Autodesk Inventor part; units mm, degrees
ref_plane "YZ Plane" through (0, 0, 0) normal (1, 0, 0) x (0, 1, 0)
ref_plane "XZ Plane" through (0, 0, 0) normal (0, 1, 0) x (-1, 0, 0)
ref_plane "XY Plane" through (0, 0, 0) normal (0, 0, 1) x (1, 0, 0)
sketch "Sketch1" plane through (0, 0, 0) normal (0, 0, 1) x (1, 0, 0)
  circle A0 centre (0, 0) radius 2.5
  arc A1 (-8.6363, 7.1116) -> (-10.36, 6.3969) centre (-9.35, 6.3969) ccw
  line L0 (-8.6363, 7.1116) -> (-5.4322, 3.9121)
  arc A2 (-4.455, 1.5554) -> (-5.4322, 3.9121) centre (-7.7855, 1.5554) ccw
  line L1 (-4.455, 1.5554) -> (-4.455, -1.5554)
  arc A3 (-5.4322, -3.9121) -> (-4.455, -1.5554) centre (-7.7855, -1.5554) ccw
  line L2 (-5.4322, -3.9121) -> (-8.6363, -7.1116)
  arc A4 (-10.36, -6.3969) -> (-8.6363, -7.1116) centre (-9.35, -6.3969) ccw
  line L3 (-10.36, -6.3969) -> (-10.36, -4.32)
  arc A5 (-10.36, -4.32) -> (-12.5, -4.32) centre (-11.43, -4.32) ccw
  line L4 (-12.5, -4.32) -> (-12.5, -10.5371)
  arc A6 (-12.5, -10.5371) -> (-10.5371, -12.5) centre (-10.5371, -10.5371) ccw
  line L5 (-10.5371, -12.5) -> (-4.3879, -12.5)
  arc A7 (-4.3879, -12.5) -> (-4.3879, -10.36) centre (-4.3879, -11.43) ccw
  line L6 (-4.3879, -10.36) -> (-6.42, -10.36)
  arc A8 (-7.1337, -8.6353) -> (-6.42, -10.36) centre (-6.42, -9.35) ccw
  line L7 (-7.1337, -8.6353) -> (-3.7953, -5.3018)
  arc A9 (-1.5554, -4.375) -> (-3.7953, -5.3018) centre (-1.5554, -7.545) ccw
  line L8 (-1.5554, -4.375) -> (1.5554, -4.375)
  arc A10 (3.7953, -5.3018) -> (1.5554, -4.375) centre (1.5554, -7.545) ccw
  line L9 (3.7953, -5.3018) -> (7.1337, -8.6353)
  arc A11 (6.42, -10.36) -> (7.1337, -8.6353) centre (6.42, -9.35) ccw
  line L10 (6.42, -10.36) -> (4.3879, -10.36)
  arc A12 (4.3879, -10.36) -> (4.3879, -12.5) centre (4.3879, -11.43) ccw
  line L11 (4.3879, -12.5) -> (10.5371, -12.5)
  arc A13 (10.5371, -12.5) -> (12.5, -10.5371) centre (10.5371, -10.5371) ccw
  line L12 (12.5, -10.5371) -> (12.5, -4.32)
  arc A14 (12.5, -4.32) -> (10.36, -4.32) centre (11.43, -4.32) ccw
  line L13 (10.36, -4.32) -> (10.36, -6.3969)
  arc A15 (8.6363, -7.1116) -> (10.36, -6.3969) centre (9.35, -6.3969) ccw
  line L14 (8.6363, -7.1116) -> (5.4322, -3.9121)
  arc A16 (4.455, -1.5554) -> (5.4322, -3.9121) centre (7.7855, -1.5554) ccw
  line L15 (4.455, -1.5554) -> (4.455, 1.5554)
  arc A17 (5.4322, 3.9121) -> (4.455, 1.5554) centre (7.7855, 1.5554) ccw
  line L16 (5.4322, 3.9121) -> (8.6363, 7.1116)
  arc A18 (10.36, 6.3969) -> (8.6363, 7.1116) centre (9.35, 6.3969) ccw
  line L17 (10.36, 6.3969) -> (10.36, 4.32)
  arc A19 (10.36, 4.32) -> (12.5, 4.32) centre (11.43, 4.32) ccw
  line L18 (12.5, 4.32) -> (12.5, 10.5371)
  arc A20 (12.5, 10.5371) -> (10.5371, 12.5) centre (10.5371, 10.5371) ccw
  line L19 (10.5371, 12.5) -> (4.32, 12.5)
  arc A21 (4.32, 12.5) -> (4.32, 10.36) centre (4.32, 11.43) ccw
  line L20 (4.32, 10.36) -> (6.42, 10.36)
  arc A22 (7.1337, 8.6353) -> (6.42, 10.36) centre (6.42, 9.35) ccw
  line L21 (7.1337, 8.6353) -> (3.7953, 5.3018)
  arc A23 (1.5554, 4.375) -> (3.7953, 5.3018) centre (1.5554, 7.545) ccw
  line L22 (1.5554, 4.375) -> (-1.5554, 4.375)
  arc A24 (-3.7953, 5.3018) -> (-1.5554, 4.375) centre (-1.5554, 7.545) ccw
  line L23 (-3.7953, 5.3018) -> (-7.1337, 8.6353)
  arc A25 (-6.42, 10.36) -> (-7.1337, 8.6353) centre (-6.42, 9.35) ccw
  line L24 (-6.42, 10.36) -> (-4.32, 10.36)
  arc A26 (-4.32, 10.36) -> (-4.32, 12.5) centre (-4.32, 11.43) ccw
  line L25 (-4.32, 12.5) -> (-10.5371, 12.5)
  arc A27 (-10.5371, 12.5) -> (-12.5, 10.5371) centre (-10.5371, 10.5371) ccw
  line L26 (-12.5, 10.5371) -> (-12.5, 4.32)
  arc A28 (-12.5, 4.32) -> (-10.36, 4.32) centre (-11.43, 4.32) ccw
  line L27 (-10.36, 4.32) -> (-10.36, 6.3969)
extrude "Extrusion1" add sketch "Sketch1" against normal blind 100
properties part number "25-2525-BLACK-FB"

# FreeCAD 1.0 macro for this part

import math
import FreeCAD as App
import Part
import Sketcher
Q = App.Units.Quantity

doc = App.newDocument("Part")
body = doc.addObject("PartDesign::Body", "Body")

# Sketch on XY plane
sketch1 = body.newObject("Sketcher::SketchObject", "Sketch")
sketch1.AttachmentSupport = (doc.getObject("XY_Plane"), [""])
sketch1.MapMode = "FlatFace"
sketch1.addGeometry(Part.ArcOfCircle(Part.Circle(App.Vector(-9.3, 6.4, 0), App.Vector(0, 0, 1), 1), math.radians(45), math.radians(180)), False)
sketch1.addGeometry(Part.LineSegment(App.Vector(-8.6, 7.1, 0), App.Vector(-5.4, 3.9, 0)), False)
sketch1.addGeometry(Part.ArcOfCircle(Part.Circle(App.Vector(-7.8, 1.6, 0), App.Vector(0, 0, 1), 3.3), math.radians(0), math.radians(45)), False)
sketch1.addGeometry(Part.LineSegment(App.Vector(-4.5, 1.6, 0), App.Vector(-4.5, -1.6, 0)), False)
sketch1.addGeometry(Part.ArcOfCircle(Part.Circle(App.Vector(-7.8, -1.6, 0), App.Vector(0, 0, 1), 3.3), math.radians(-45), math.radians(0)), False)
sketch1.addGeometry(Part.LineSegment(App.Vector(-5.4, -3.9, 0), App.Vector(-8.6, -7.1, 0)), False)
sketch1.addGeometry(Part.ArcOfCircle(Part.Circle(App.Vector(-9.3, -6.4, 0), App.Vector(0, 0, 1), 1), math.radians(180), math.radians(315)), False)
sketch1.addGeometry(Part.LineSegment(App.Vector(-10.4, -6.4, 0), App.Vector(-10.4, -4.3, 0)), False)
sketch1.addGeometry(Part.ArcOfCircle(Part.Circle(App.Vector(-11.4, -4.3, 0), App.Vector(0, 0, 1), 1.1), math.radians(0), math.radians(180)), False)
sketch1.addGeometry(Part.LineSegment(App.Vector(-12.5, -4.3, 0), App.Vector(-12.5, -10.5, 0)), False)
sketch1.addGeometry(Part.ArcOfCircle(Part.Circle(App.Vector(-10.5, -10.5, 0), App.Vector(0, 0, 1), 2), math.radians(180), math.radians(270)), False)
sketch1.addGeometry(Part.LineSegment(App.Vector(-10.5, -12.5, 0), App.Vector(-4.4, -12.5, 0)), False)
sketch1.addGeometry(Part.ArcOfCircle(Part.Circle(App.Vector(-4.4, -11.4, 0), App.Vector(0, 0, 1), 1.1), math.radians(-90), math.radians(90)), False)
sketch1.addGeometry(Part.LineSegment(App.Vector(-4.4, -10.4, 0), App.Vector(-6.4, -10.4, 0)), False)
sketch1.addGeometry(Part.ArcOfCircle(Part.Circle(App.Vector(-6.4, -9.3, 0), App.Vector(0, 0, 1), 1), math.radians(135), math.radians(270)), False)
sketch1.addGeometry(Part.LineSegment(App.Vector(-7.1, -8.6, 0), App.Vector(-3.8, -5.3, 0)), False)
sketch1.addGeometry(Part.ArcOfCircle(Part.Circle(App.Vector(-1.6, -7.5, 0), App.Vector(0, 0, 1), 3.2), math.radians(90), math.radians(135)), False)
sketch1.addGeometry(Part.LineSegment(App.Vector(-1.6, -4.4, 0), App.Vector(1.6, -4.4, 0)), False)
sketch1.addGeometry(Part.ArcOfCircle(Part.Circle(App.Vector(1.6, -7.5, 0), App.Vector(0, 0, 1), 3.2), math.radians(45), math.radians(90)), False)
sketch1.addGeometry(Part.LineSegment(App.Vector(3.8, -5.3, 0), App.Vector(7.1, -8.6, 0)), False)
sketch1.addGeometry(Part.ArcOfCircle(Part.Circle(App.Vector(6.4, -9.3, 0), App.Vector(0, 0, 1), 1), math.radians(-90), math.radians(45)), False)
sketch1.addGeometry(Part.LineSegment(App.Vector(6.4, -10.4, 0), App.Vector(4.4, -10.4, 0)), False)
sketch1.addGeometry(Part.ArcOfCircle(Part.Circle(App.Vector(4.4, -11.4, 0), App.Vector(0, 0, 1), 1.1), math.radians(90), math.radians(270)), False)
sketch1.addGeometry(Part.LineSegment(App.Vector(4.4, -12.5, 0), App.Vector(10.5, -12.5, 0)), False)
sketch1.addGeometry(Part.ArcOfCircle(Part.Circle(App.Vector(10.5, -10.5, 0), App.Vector(0, 0, 1), 2), math.radians(-90), math.radians(0)), False)
sketch1.addGeometry(Part.LineSegment(App.Vector(12.5, -10.5, 0), App.Vector(12.5, -4.3, 0)), False)
sketch1.addGeometry(Part.ArcOfCircle(Part.Circle(App.Vector(11.4, -4.3, 0), App.Vector(0, 0, 1), 1.1), math.radians(0), math.radians(180)), False)
sketch1.addGeometry(Part.LineSegment(App.Vector(10.4, -4.3, 0), App.Vector(10.4, -6.4, 0)), False)
sketch1.addGeometry(Part.ArcOfCircle(Part.Circle(App.Vector(9.3, -6.4, 0), App.Vector(0, 0, 1), 1), math.radians(-135), math.radians(0)), False)
sketch1.addGeometry(Part.LineSegment(App.Vector(8.6, -7.1, 0), App.Vector(5.4, -3.9, 0)), False)
sketch1.addGeometry(Part.ArcOfCircle(Part.Circle(App.Vector(7.8, -1.6, 0), App.Vector(0, 0, 1), 3.3), math.radians(180), math.radians(225)), False)
sketch1.addGeometry(Part.LineSegment(App.Vector(4.5, -1.6, 0), App.Vector(4.5, 1.6, 0)), False)
sketch1.addGeometry(Part.ArcOfCircle(Part.Circle(App.Vector(7.8, 1.6, 0), App.Vector(0, 0, 1), 3.3), math.radians(135), math.radians(180)), False)
sketch1.addGeometry(Part.LineSegment(App.Vector(5.4, 3.9, 0), App.Vector(8.6, 7.1, 0)), False)
sketch1.addGeometry(Part.ArcOfCircle(Part.Circle(App.Vector(9.3, 6.4, 0), App.Vector(0, 0, 1), 1), math.radians(0), math.radians(135)), False)
sketch1.addGeometry(Part.LineSegment(App.Vector(10.4, 6.4, 0), App.Vector(10.4, 4.3, 0)), False)
sketch1.addGeometry(Part.ArcOfCircle(Part.Circle(App.Vector(11.4, 4.3, 0), App.Vector(0, 0, 1), 1.1), math.radians(180), math.radians(360)), False)
sketch1.addGeometry(Part.LineSegment(App.Vector(12.5, 4.3, 0), App.Vector(12.5, 10.5, 0)), False)
sketch1.addGeometry(Part.ArcOfCircle(Part.Circle(App.Vector(10.5, 10.5, 0), App.Vector(0, 0, 1), 2), math.radians(0), math.radians(90)), False)
sketch1.addGeometry(Part.LineSegment(App.Vector(10.5, 12.5, 0), App.Vector(4.3, 12.5, 0)), False)
sketch1.addGeometry(Part.ArcOfCircle(Part.Circle(App.Vector(4.3, 11.4, 0), App.Vector(0, 0, 1), 1.1), math.radians(90), math.radians(270)), False)
sketch1.addGeometry(Part.LineSegment(App.Vector(4.3, 10.4, 0), App.Vector(6.4, 10.4, 0)), False)
sketch1.addGeometry(Part.ArcOfCircle(Part.Circle(App.Vector(6.4, 9.3, 0), App.Vector(0, 0, 1), 1), math.radians(-45), math.radians(90)), False)
sketch1.addGeometry(Part.LineSegment(App.Vector(7.1, 8.6, 0), App.Vector(3.8, 5.3, 0)), False)
sketch1.addGeometry(Part.ArcOfCircle(Part.Circle(App.Vector(1.6, 7.5, 0), App.Vector(0, 0, 1), 3.2), math.radians(-90), math.radians(-45)), False)
sketch1.addGeometry(Part.LineSegment(App.Vector(1.6, 4.4, 0), App.Vector(-1.6, 4.4, 0)), False)
sketch1.addGeometry(Part.ArcOfCircle(Part.Circle(App.Vector(-1.6, 7.5, 0), App.Vector(0, 0, 1), 3.2), math.radians(-135), math.radians(-90)), False)
sketch1.addGeometry(Part.LineSegment(App.Vector(-3.8, 5.3, 0), App.Vector(-7.1, 8.6, 0)), False)
sketch1.addGeometry(Part.ArcOfCircle(Part.Circle(App.Vector(-6.4, 9.3, 0), App.Vector(0, 0, 1), 1), math.radians(90), math.radians(225)), False)
sketch1.addGeometry(Part.LineSegment(App.Vector(-6.4, 10.4, 0), App.Vector(-4.3, 10.4, 0)), False)
sketch1.addGeometry(Part.ArcOfCircle(Part.Circle(App.Vector(-4.3, 11.4, 0), App.Vector(0, 0, 1), 1.1), math.radians(-90), math.radians(90)), False)
sketch1.addGeometry(Part.LineSegment(App.Vector(-4.3, 12.5, 0), App.Vector(-10.5, 12.5, 0)), False)
sketch1.addGeometry(Part.ArcOfCircle(Part.Circle(App.Vector(-10.5, 10.5, 0), App.Vector(0, 0, 1), 2), math.radians(90), math.radians(180)), False)
sketch1.addGeometry(Part.LineSegment(App.Vector(-12.5, 10.5, 0), App.Vector(-12.5, 4.3, 0)), False)
sketch1.addGeometry(Part.ArcOfCircle(Part.Circle(App.Vector(-11.4, 4.3, 0), App.Vector(0, 0, 1), 1.1), math.radians(180), math.radians(360)), False)
sketch1.addGeometry(Part.LineSegment(App.Vector(-10.4, 4.3, 0), App.Vector(-10.4, 6.4, 0)), False)
sketch1.addGeometry(Part.Circle(App.Vector(0, 0, 0), App.Vector(0, 0, 1), 2.5), False)
sketch1.addConstraint(Sketcher.Constraint("Tangent", 0, 1, 1, 1))
sketch1.addConstraint(Sketcher.Constraint("Tangent", 1, 2, 2, 2))
sketch1.addConstraint(Sketcher.Constraint("Tangent", 2, 1, 3, 1))
sketch1.addConstraint(Sketcher.Constraint("Tangent", 3, 2, 4, 2))
sketch1.addConstraint(Sketcher.Constraint("Tangent", 4, 1, 5, 1))
sketch1.addConstraint(Sketcher.Constraint("Tangent", 5, 2, 6, 2))
sketch1.addConstraint(Sketcher.Constraint("Tangent", 6, 1, 7, 1))
sketch1.addConstraint(Sketcher.Constraint("Tangent", 7, 2, 8, 1))
sketch1.addConstraint(Sketcher.Constraint("Tangent", 8, 2, 9, 1))
sketch1.addConstraint(Sketcher.Constraint("Tangent", 9, 2, 10, 1))
sketch1.addConstraint(Sketcher.Constraint("Tangent", 10, 2, 11, 1))
sketch1.addConstraint(Sketcher.Constraint("Tangent", 11, 2, 12, 1))
sketch1.addConstraint(Sketcher.Constraint("Tangent", 12, 2, 13, 1))
sketch1.addConstraint(Sketcher.Constraint("Tangent", 13, 2, 14, 2))
sketch1.addConstraint(Sketcher.Constraint("Tangent", 14, 1, 15, 1))
sketch1.addConstraint(Sketcher.Constraint("Tangent", 15, 2, 16, 2))
sketch1.addConstraint(Sketcher.Constraint("Tangent", 16, 1, 17, 1))
sketch1.addConstraint(Sketcher.Constraint("Tangent", 17, 2, 18, 2))
sketch1.addConstraint(Sketcher.Constraint("Tangent", 18, 1, 19, 1))
sketch1.addConstraint(Sketcher.Constraint("Tangent", 19, 2, 20, 2))
sketch1.addConstraint(Sketcher.Constraint("Tangent", 20, 1, 21, 1))
sketch1.addConstraint(Sketcher.Constraint("Tangent", 21, 2, 22, 1))
sketch1.addConstraint(Sketcher.Constraint("Tangent", 22, 2, 23, 1))
sketch1.addConstraint(Sketcher.Constraint("Tangent", 23, 2, 24, 1))
sketch1.addConstraint(Sketcher.Constraint("Tangent", 24, 2, 25, 1))
sketch1.addConstraint(Sketcher.Constraint("Tangent", 25, 2, 26, 1))
sketch1.addConstraint(Sketcher.Constraint("Tangent", 26, 2, 27, 1))
sketch1.addConstraint(Sketcher.Constraint("Tangent", 27, 2, 28, 2))
sketch1.addConstraint(Sketcher.Constraint("Tangent", 28, 1, 29, 1))
sketch1.addConstraint(Sketcher.Constraint("Tangent", 29, 2, 30, 2))
sketch1.addConstraint(Sketcher.Constraint("Tangent", 30, 1, 31, 1))
sketch1.addConstraint(Sketcher.Constraint("Tangent", 31, 2, 32, 2))
sketch1.addConstraint(Sketcher.Constraint("Tangent", 32, 1, 33, 1))
sketch1.addConstraint(Sketcher.Constraint("Tangent", 33, 2, 34, 2))
sketch1.addConstraint(Sketcher.Constraint("Tangent", 34, 1, 35, 1))
sketch1.addConstraint(Sketcher.Constraint("Tangent", 35, 2, 36, 1))
sketch1.addConstraint(Sketcher.Constraint("Tangent", 36, 2, 37, 1))
sketch1.addConstraint(Sketcher.Constraint("Tangent", 37, 2, 38, 1))
sketch1.addConstraint(Sketcher.Constraint("Tangent", 38, 2, 39, 1))
sketch1.addConstraint(Sketcher.Constraint("Tangent", 39, 2, 40, 1))
sketch1.addConstraint(Sketcher.Constraint("Tangent", 40, 2, 41, 1))
sketch1.addConstraint(Sketcher.Constraint("Tangent", 41, 2, 42, 2))
sketch1.addConstraint(Sketcher.Constraint("Tangent", 42, 1, 43, 1))
sketch1.addConstraint(Sketcher.Constraint("Tangent", 43, 2, 44, 2))
sketch1.addConstraint(Sketcher.Constraint("Tangent", 44, 1, 45, 1))
sketch1.addConstraint(Sketcher.Constraint("Tangent", 45, 2, 46, 2))
sketch1.addConstraint(Sketcher.Constraint("Tangent", 46, 1, 47, 1))
sketch1.addConstraint(Sketcher.Constraint("Tangent", 47, 2, 48, 2))
sketch1.addConstraint(Sketcher.Constraint("Tangent", 48, 1, 49, 1))
sketch1.addConstraint(Sketcher.Constraint("Tangent", 49, 2, 50, 1))
sketch1.addConstraint(Sketcher.Constraint("Tangent", 50, 2, 51, 1))
sketch1.addConstraint(Sketcher.Constraint("Tangent", 51, 2, 52, 1))
sketch1.addConstraint(Sketcher.Constraint("Tangent", 52, 2, 53, 1))
sketch1.addConstraint(Sketcher.Constraint("Tangent", 53, 2, 54, 1))
sketch1.addConstraint(Sketcher.Constraint("Tangent", 54, 2, 55, 1))
sketch1.addConstraint(Sketcher.Constraint("Tangent", 55, 2, 0, 2))
sketch1.addConstraint(Sketcher.Constraint("Vertical", 3))
sketch1.addConstraint(Sketcher.Constraint("Vertical", 7))
sketch1.addConstraint(Sketcher.Constraint("Vertical", 9))
sketch1.addConstraint(Sketcher.Constraint("Horizontal", 11))
sketch1.addConstraint(Sketcher.Constraint("Horizontal", 13))
sketch1.addConstraint(Sketcher.Constraint("Horizontal", 17))
sketch1.addConstraint(Sketcher.Constraint("Horizontal", 21))
sketch1.addConstraint(Sketcher.Constraint("Horizontal", 23))
sketch1.addConstraint(Sketcher.Constraint("Vertical", 25))
sketch1.addConstraint(Sketcher.Constraint("Vertical", 27))
sketch1.addConstraint(Sketcher.Constraint("Vertical", 31))
sketch1.addConstraint(Sketcher.Constraint("Vertical", 35))
sketch1.addConstraint(Sketcher.Constraint("Vertical", 37))
sketch1.addConstraint(Sketcher.Constraint("Horizontal", 39))
sketch1.addConstraint(Sketcher.Constraint("Horizontal", 41))
sketch1.addConstraint(Sketcher.Constraint("Horizontal", 45))
sketch1.addConstraint(Sketcher.Constraint("Horizontal", 49))
sketch1.addConstraint(Sketcher.Constraint("Horizontal", 51))
sketch1.addConstraint(Sketcher.Constraint("Vertical", 53))
sketch1.addConstraint(Sketcher.Constraint("Vertical", 55))
sketch1.addConstraint(Sketcher.Constraint("Coincident", 56, 3, -1, 1))
sketch1.addConstraint(Sketcher.Constraint("Equal", 2, 4))
sketch1.addConstraint(Sketcher.Constraint("Equal", 0, 6))
sketch1.addConstraint(Sketcher.Constraint("Equal", 8, 12))
sketch1.addConstraint(Sketcher.Constraint("Equal", 6, 14))
sketch1.addConstraint(Sketcher.Constraint("Equal", 16, 18))
sketch1.addConstraint(Sketcher.Constraint("Equal", 14, 20))
sketch1.addConstraint(Sketcher.Constraint("Equal", 12, 22))
sketch1.addConstraint(Sketcher.Constraint("Equal", 10, 24))
sketch1.addConstraint(Sketcher.Constraint("Equal", 22, 26))
sketch1.addConstraint(Sketcher.Constraint("Equal", 20, 28))
sketch1.addConstraint(Sketcher.Constraint("Equal", 4, 30))
sketch1.addConstraint(Sketcher.Constraint("Equal", 30, 32))
sketch1.addConstraint(Sketcher.Constraint("Equal", 28, 34))
sketch1.addConstraint(Sketcher.Constraint("Equal", 26, 36))
sketch1.addConstraint(Sketcher.Constraint("Equal", 24, 38))
sketch1.addConstraint(Sketcher.Constraint("Equal", 36, 40))
sketch1.addConstraint(Sketcher.Constraint("Equal", 34, 42))
sketch1.addConstraint(Sketcher.Constraint("Equal", 18, 44))
sketch1.addConstraint(Sketcher.Constraint("Equal", 44, 46))
sketch1.addConstraint(Sketcher.Constraint("Equal", 42, 48))
sketch1.addConstraint(Sketcher.Constraint("Equal", 40, 50))
sketch1.addConstraint(Sketcher.Constraint("Equal", 38, 52))
sketch1.addConstraint(Sketcher.Constraint("Equal", 50, 54))
sketch1.addConstraint(Sketcher.Constraint("Symmetric", 0, 3, 28, 3, -1, 1))
sketch1.addConstraint(Sketcher.Constraint("Symmetric", 2, 3, 30, 3, -1, 1))
sketch1.addConstraint(Sketcher.Constraint("Symmetric", 6, 3, 34, 3, -1, 1))
sketch1.addConstraint(Sketcher.Constraint("Symmetric", 14, 3, 42, 3, -1, 1))
sketch1.addConstraint(Sketcher.Constraint("Symmetric", 16, 3, 44, 3, -1, 1))
sketch1.addConstraint(Sketcher.Constraint("Symmetric", 20, 3, 48, 3, -1, 1))
sketch1.addConstraint(Sketcher.Constraint("Symmetric", 14, 3, 20, 3, -2))
sketch1.addConstraint(Sketcher.Constraint("Symmetric", 8, 3, 26, 3, -2))
sketch1.addConstraint(Sketcher.Constraint("Symmetric", 5, 2, 28, 1, -2))
sketch1.addConstraint(Sketcher.Constraint("Parallel", 5, 15))
sketch1.addConstraint(Sketcher.Constraint("Parallel", 1, 19))
sketch1.addConstraint(Sketcher.Constraint("Parallel", 15, 33))
sketch1.addConstraint(Sketcher.Constraint("Parallel", 29, 47))
sketch1.addConstraint(Sketcher.Constraint("Horizontal", 36, 3, 54, 3))
sketch1.addConstraint(Sketcher.Constraint("Equal", 13, 21))
sketch1.addConstraint(Sketcher.Constraint("Equal", 41, 49))
sketch1.addConstraint(Sketcher.Constraint("Equal", 45, 3))
sketch1.addConstraint(Sketcher.Constraint("Equal", 51, 9))
sketch1.addConstraint(Sketcher.Constraint("Equal", 27, 35))
sketch1.addConstraint(Sketcher.Constraint("Diameter", 56, 5.0))
sketch1.addConstraint(Sketcher.Constraint("Radius", 0, 1.01))
sketch1.addConstraint(Sketcher.Constraint("Radius", 8, 1.07))
sketch1.addConstraint(Sketcher.Constraint("Radius", 16, 3.17))
sketch1.addConstraint(Sketcher.Constraint("DistanceX", 41, 1, 41, 2, 2.1))
sketch1.addConstraint(Sketcher.Constraint("Radius", 10, 1.963))
sketch1.addConstraint(Sketcher.Constraint("DistanceX", 8, 2, -1, 1, 12.5))
sketch1.addConstraint(Sketcher.Constraint("DistanceY", 10, 2, -1, 1, 12.5))
sketch1.addConstraint(Sketcher.Constraint("Angle", 1, Q("-44.9588 deg")))
sketch1.addConstraint(Sketcher.Constraint("Radius", 2, 3.3305))
sketch1.addConstraint(Sketcher.Constraint("DistanceX", 13, 2, 13, 1, 2.032))
sketch1.addConstraint(Sketcher.Constraint("DistanceX", 39, 2, 39, 1, 6.217))
sketch1.addConstraint(Sketcher.Constraint("DistanceY", 7, 1, 7, 2, 2.077))
sketch1.addConstraint(Sketcher.Constraint("Distance", 1, 4.528))
pad1 = body.newObject("PartDesign::Pad", "Pad")
pad1.Profile = sketch1
pad1.Length = 100
pad1.Reversed = True

doc.recompute()
